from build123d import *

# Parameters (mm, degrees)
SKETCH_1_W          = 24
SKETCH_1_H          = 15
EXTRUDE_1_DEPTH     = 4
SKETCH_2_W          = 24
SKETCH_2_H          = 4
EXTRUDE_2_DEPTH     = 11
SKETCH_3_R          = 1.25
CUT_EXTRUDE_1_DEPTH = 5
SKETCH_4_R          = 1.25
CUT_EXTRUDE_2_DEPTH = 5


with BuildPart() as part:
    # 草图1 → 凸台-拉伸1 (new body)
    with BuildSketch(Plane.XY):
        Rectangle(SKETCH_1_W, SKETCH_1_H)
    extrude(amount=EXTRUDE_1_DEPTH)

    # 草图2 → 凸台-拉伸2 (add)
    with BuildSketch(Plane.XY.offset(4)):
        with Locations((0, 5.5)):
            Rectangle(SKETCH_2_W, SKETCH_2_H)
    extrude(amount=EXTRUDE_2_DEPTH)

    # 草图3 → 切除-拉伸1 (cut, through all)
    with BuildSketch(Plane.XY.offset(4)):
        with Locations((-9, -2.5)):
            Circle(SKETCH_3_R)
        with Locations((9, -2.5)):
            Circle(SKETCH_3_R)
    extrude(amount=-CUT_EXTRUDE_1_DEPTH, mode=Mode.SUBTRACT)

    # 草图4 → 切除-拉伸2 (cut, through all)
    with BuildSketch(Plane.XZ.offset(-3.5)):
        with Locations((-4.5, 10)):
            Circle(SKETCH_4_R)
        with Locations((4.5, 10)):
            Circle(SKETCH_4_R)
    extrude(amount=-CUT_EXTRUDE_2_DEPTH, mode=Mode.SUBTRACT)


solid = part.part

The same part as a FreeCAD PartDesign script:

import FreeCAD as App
import Part
import Sketcher
from FreeCAD import Vector

doc = App.newDocument("Part")
body = doc.addObject("PartDesign::Body", "Body")

sketch1 = body.newObject("Sketcher::SketchObject", "Sketch")
sketch1.AttachmentSupport = (doc.getObject("XY_Plane"), [""])
sketch1.MapMode = "FlatFace"
sketch1.addGeometry([
    Part.LineSegment(Vector(-12, 8, 0), Vector(-12, -8, 0)),
    Part.LineSegment(Vector(-12, -8, 0), Vector(12, -8, 0)),
    Part.LineSegment(Vector(12, -8, 0), Vector(12, 8, 0)),
    Part.LineSegment(Vector(12, 8, 0), Vector(-12, 8, 0)),
], False)
sketch1.addConstraint([
    Sketcher.Constraint("Coincident", 0, 2, 1, 1),
    Sketcher.Constraint("Coincident", 1, 2, 2, 1),
    Sketcher.Constraint("Coincident", 2, 2, 3, 1),
    Sketcher.Constraint("Coincident", 3, 2, 0, 1),
    Sketcher.Constraint("Vertical", 0),
    Sketcher.Constraint("Horizontal", 1),
    Sketcher.Constraint("Vertical", 2),
    Sketcher.Constraint("Horizontal", 3),
    Sketcher.Constraint("Symmetric", 0, 2, 2, 2, -1, 1),
    Sketcher.Constraint("DistanceX", 1, 1, 1, 2, 24.0),
    Sketcher.Constraint("DistanceY", 0, 2, 0, 1, 15.0),
])
pad1 = body.newObject("PartDesign::Pad", "Pad")
pad1.Profile = sketch1
pad1.Length = 4

sketch2 = body.newObject("Sketcher::SketchObject", "Sketch001")
sketch2.AttachmentSupport = (doc.getObject("XY_Plane"), [""])
sketch2.MapMode = "FlatFace"
sketch2.AttachmentOffset = App.Placement(Vector(0, 0, 4), App.Rotation())
sketch2.addGeometry([
    Part.LineSegment(Vector(-12, 7.5, 0), Vector(-12, 3.5, 0)),
    Part.LineSegment(Vector(-12, 3.5, 0), Vector(12, 3.5, 0)),
    Part.LineSegment(Vector(12, 3.5, 0), Vector(12, 7.5, 0)),
    Part.LineSegment(Vector(12, 7.5, 0), Vector(-12, 7.5, 0)),
], False)
sketch2.addConstraint([
    Sketcher.Constraint("Coincident", 0, 2, 1, 1),
    Sketcher.Constraint("Coincident", 1, 2, 2, 1),
    Sketcher.Constraint("Coincident", 2, 2, 3, 1),
    Sketcher.Constraint("Coincident", 3, 2, 0, 1),
    Sketcher.Constraint("Vertical", 0),
    Sketcher.Constraint("Horizontal", 1),
    Sketcher.Constraint("Vertical", 2),
    Sketcher.Constraint("Horizontal", 3),
    Sketcher.Constraint("DistanceX", 1, 1, 1, 2, 24.0),
    Sketcher.Constraint("DistanceY", 0, 2, 0, 1, 4.0),
    Sketcher.Constraint("DistanceX", 0, 2, -1, 1, 12.0),
    Sketcher.Constraint("DistanceY", -1, 1, 0, 2, 3.5),
])
pad2 = body.newObject("PartDesign::Pad", "Pad001")
pad2.Profile = sketch2
pad2.Length = 11

sketch3 = body.newObject("Sketcher::SketchObject", "Sketch002")
sketch3.AttachmentSupport = (doc.getObject("XY_Plane"), [""])
sketch3.MapMode = "FlatFace"
sketch3.AttachmentOffset = App.Placement(Vector(0, 0, 4), App.Rotation())
sketch3.addGeometry([
    Part.Circle(Vector(-9, -2.5, 0), Vector(0, 0, 1), 1.2),
    Part.Circle(Vector(9, -2.5, 0), Vector(0, 0, 1), 1.2),
], False)
sketch3.addConstraint([
    Sketcher.Constraint("Equal", 0, 1),
    Sketcher.Constraint("Symmetric", 0, 3, 1, 3, -2),
    Sketcher.Constraint("Diameter", 0, 2.5),
    Sketcher.Constraint("DistanceX", 0, 3, -1, 1, 9.0),
    Sketcher.Constraint("DistanceY", 0, 3, -1, 1, 2.5),
])
pocket1 = body.newObject("PartDesign::Pocket", "Pocket")
pocket1.Profile = sketch3
pocket1.Type = "ThroughAll"

sketch4 = body.newObject("Sketcher::SketchObject", "Sketch003")
sketch4.AttachmentSupport = (doc.getObject("XZ_Plane"), [""])
sketch4.MapMode = "FlatFace"
sketch4.AttachmentOffset = App.Placement(Vector(0, 0, -3.5), App.Rotation())
sketch4.addGeometry([
    Part.Circle(Vector(-4.5, 10, 0), Vector(0, 0, 1), 1.2),
    Part.Circle(Vector(4.5, 10, 0), Vector(0, 0, 1), 1.2),
], False)
sketch4.addConstraint([
    Sketcher.Constraint("Equal", 0, 1),
    Sketcher.Constraint("Symmetric", 0, 3, 1, 3, -2),
    Sketcher.Constraint("Diameter", 0, 2.5),
    Sketcher.Constraint("DistanceY", -1, 1, 0, 3, 10.0),
    Sketcher.Constraint("DistanceX", 0, 3, 1, 3, 9.0),
])
pocket2 = body.newObject("PartDesign::Pocket", "Pocket001")
pocket2.Profile = sketch4
pocket2.Type = "ThroughAll"

doc.recompute()
